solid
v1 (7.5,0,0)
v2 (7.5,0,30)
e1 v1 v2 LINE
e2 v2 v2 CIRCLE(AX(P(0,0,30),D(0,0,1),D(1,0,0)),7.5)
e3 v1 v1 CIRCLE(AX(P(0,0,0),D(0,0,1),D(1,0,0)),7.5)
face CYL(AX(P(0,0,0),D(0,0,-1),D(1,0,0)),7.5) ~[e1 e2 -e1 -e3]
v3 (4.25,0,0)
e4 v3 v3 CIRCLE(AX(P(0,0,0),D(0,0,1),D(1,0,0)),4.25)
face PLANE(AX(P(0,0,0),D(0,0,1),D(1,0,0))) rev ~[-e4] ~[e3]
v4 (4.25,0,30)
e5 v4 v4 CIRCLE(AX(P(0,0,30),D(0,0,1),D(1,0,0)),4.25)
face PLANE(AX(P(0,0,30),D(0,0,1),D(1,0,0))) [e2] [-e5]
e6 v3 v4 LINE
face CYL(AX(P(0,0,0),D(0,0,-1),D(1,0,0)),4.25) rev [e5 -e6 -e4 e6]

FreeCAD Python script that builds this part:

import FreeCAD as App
import Part
import Sketcher

doc = App.newDocument("Part")
params = doc.addObject("Spreadsheet::Sheet", "Params")
for row, (alias, value) in enumerate([
    ("sketch1_diameter", "15 mm"),
    ("sketch1_diameter2", "8.5 mm"),
    ("pad1_length", "30 mm"),
], start=1):
    params.set(f"A{row}", alias)
    params.set(f"B{row}", "=" + value)
    params.setAlias(f"B{row}", alias)

body = doc.addObject("PartDesign::Body", "Body")

sketch1 = doc.addObject("Sketcher::SketchObject", "Sketch")
body.addObject(sketch1)
sketch1.AttachmentSupport = (doc.XY_Plane, [""])
sketch1.MapMode = "FlatFace"
sketch1.addGeometry(Part.Circle(App.Vector(0, 0, 0), App.Vector(0, 0, 1), 7.5), False)
sketch1.addGeometry(Part.Circle(App.Vector(0, 0, 0), App.Vector(0, 0, 1), 4.2), False)
sketch1.addConstraint(Sketcher.Constraint("Coincident", 0, 3, -1, 1))
sketch1.addConstraint(Sketcher.Constraint("Coincident", 1, 3, -1, 1))
sketch1.addConstraint(Sketcher.Constraint("Diameter", 0, 15.0))
sketch1.addConstraint(Sketcher.Constraint("Diameter", 1, 8.5))
sketch1.setExpression("Constraints[2]", "Params.sketch1_diameter")
sketch1.setExpression("Constraints[3]", "Params.sketch1_diameter2")
pad1 = doc.addObject("PartDesign::Pad", "Pad")
body.addObject(pad1)
pad1.Profile = sketch1
pad1.setExpression("Length", "Params.pad1_length")

doc.recompute()
